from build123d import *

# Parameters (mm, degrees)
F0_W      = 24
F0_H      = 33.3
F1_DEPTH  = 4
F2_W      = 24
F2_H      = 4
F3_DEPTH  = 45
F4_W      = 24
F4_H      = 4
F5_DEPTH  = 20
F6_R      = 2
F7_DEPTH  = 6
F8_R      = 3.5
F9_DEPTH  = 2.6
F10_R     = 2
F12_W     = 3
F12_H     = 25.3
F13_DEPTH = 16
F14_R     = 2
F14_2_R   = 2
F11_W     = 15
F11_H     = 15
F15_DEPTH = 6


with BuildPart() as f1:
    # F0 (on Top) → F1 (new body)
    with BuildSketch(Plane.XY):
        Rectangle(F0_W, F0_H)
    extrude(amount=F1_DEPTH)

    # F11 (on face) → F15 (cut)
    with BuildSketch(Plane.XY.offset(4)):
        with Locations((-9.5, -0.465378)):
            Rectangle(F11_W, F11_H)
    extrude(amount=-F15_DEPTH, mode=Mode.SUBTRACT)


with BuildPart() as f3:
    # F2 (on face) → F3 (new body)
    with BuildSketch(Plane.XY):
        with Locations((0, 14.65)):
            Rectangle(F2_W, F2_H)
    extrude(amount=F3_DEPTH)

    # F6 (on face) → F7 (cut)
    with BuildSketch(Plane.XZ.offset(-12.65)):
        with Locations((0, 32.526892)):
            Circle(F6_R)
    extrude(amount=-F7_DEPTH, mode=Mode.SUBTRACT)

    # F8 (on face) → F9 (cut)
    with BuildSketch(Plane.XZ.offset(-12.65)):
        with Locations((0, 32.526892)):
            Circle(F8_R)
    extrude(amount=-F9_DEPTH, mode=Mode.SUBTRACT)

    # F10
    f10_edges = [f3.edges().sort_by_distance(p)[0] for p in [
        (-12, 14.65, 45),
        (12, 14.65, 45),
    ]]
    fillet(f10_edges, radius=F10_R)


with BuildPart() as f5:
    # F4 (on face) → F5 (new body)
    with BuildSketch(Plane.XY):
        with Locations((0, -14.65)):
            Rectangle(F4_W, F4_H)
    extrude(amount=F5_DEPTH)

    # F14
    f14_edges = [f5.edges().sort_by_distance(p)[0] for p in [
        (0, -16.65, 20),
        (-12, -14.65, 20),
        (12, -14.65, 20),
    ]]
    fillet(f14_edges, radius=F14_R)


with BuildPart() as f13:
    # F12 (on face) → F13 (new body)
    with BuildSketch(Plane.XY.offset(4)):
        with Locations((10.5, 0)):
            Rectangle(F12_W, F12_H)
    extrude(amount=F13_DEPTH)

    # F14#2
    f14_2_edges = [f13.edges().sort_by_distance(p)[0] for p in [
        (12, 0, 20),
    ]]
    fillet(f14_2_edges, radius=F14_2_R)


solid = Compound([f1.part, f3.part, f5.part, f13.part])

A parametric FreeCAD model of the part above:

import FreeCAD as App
import Part
import Sketcher
Q = App.Units.Quantity


def edges_at(feature, points):
    """Names of the edges that pass closest to the given points."""
    edges = feature.Shape.Edges
    near = lambda p: min(range(len(edges)), key=lambda i: edges[i].distToShape(Part.Vertex(*p))[0])
    return sorted({f"Edge{near(p) + 1}" for p in points})


def add_polygon(sketch, points):
    """Adds a closed chain of lines whose ends are joined by coincident constraints."""
    first, n = sketch.GeometryCount, len(points)
    for a, b in zip(points, points[1:] + points[:1]):
        sketch.addGeometry(Part.LineSegment(App.Vector(*a, 0), App.Vector(*b, 0)), False)
    for i in range(n):
        sketch.addConstraint(Sketcher.Constraint("Coincident", first + i, 2, first + (i + 1) % n, 1))

doc = App.newDocument("Part")
body = doc.addObject("PartDesign::Body", "Body")

sketch1 = body.newObject("Sketcher::SketchObject", "Sketch")
sketch1.AttachmentSupport = (doc.getObject("XY_Plane"), [""])
sketch1.MapMode = "FlatFace"
add_polygon(sketch1, [(-12, 16.65), (-12, -16.65), (12, -16.65), (12, 16.65)])
sketch1.addConstraint([
    Sketcher.Constraint("Vertical", 0),
    Sketcher.Constraint("Horizontal", 1),
    Sketcher.Constraint("Vertical", 2),
    Sketcher.Constraint("Horizontal", 3),
    Sketcher.Constraint("Symmetric", 0, 2, 2, 2, -1, 1),
    Sketcher.Constraint("DistanceX", 1, 1, 1, 2, Q("24 mm")),
    Sketcher.Constraint("DistanceY", 0, 2, 0, 1, Q("33.3 mm")),
])
pad1 = body.newObject("PartDesign::Pad", "Pad")
pad1.Profile = sketch1
pad1.Length = 4

sketch2 = body.newObject("Sketcher::SketchObject", "Sketch001")
sketch2.AttachmentSupport = (doc.getObject("XY_Plane"), [""])
sketch2.MapMode = "FlatFace"
sketch2.AttachmentOffset = App.Placement(App.Vector(0, 0, 4), App.Rotation())
add_polygon(sketch2, [(-17, 7.034622), (-17, -7.965378), (-2, -7.965378), (-2, 7.034622)])
sketch2.addConstraint([
    Sketcher.Constraint("Vertical", 0),
    Sketcher.Constraint("Horizontal", 1),
    Sketcher.Constraint("Vertical", 2),
    Sketcher.Constraint("Horizontal", 3),
    Sketcher.Constraint("Equal", 3, 0),
    Sketcher.Constraint("DistanceX", 1, 1, 1, 2, Q("15 mm")),
    Sketcher.Constraint("DistanceX", 0, 2, -1, 1, Q("17 mm")),
    Sketcher.Constraint("DistanceY", 0, 2, -1, 1, Q("7.965378 mm")),
])
pocket1 = body.newObject("PartDesign::Pocket", "Pocket")
pocket1.Profile = sketch2
pocket1.Length = 6
body2 = doc.addObject("PartDesign::Body", "Body001")

sketch3 = body2.newObject("Sketcher::SketchObject", "Sketch002")
sketch3.AttachmentSupport = (doc.getObject("XY_Plane001"), [""])
sketch3.MapMode = "FlatFace"
add_polygon(sketch3, [(-12, 16.65), (-12, 12.65), (12, 12.65), (12, 16.65)])
sketch3.addConstraint([
    Sketcher.Constraint("Vertical", 0),
    Sketcher.Constraint("Horizontal", 1),
    Sketcher.Constraint("Vertical", 2),
    Sketcher.Constraint("Horizontal", 3),
    Sketcher.Constraint("DistanceX", 1, 1, 1, 2, Q("24 mm")),
    Sketcher.Constraint("DistanceY", 0, 2, 0, 1, Q("4 mm")),
    Sketcher.Constraint("DistanceX", 0, 2, -1, 1, Q("12 mm")),
    Sketcher.Constraint("DistanceY", -1, 1, 0, 2, Q("12.65 mm")),
])
pad2 = body2.newObject("PartDesign::Pad", "Pad001")
pad2.Profile = sketch3
pad2.Length = 45

sketch4 = body2.newObject("Sketcher::SketchObject", "Sketch003")
sketch4.AttachmentSupport = (doc.getObject("XZ_Plane001"), [""])
sketch4.MapMode = "FlatFace"
sketch4.AttachmentOffset = App.Placement(App.Vector(0, 0, -12.65), App.Rotation())
sketch4.addGeometry(Part.Circle(App.Vector(0, 32.526892, 0), App.Vector(0, 0, 1), 2), False)
sketch4.addConstraint([
    Sketcher.Constraint("PointOnObject", 0, 3, -2),
    Sketcher.Constraint("Diameter", 0, Q("4 mm")),
    Sketcher.Constraint("DistanceY", -1, 1, 0, 3, Q("32.526892 mm")),
])
pocket2 = body2.newObject("PartDesign::Pocket", "Pocket001")
pocket2.Profile = sketch4
pocket2.Length = 6

sketch5 = body2.newObject("Sketcher::SketchObject", "Sketch004")
sketch5.AttachmentSupport = (doc.getObject("XZ_Plane001"), [""])
sketch5.MapMode = "FlatFace"
sketch5.AttachmentOffset = App.Placement(App.Vector(0, 0, -12.65), App.Rotation())
sketch5.addGeometry(Part.Circle(App.Vector(0, 32.526892, 0), App.Vector(0, 0, 1), 3.5), False)
sketch5.addConstraint([
    Sketcher.Constraint("PointOnObject", 0, 3, -2),
    Sketcher.Constraint("Diameter", 0, Q("7 mm")),
    Sketcher.Constraint("DistanceY", -1, 1, 0, 3, Q("32.526892 mm")),
])
pocket3 = body2.newObject("PartDesign::Pocket", "Pocket002")
pocket3.Profile = sketch5
pocket3.Length = 2.6
doc.recompute()

fillet = body2.newObject("PartDesign::Fillet", "Fillet")
fillet.Base = (pocket3, edges_at(pocket3, [(-12, 14.65, 45), (12, 14.65, 45)]))
fillet.Radius = 2
body3 = doc.addObject("PartDesign::Body", "Body002")

sketch6 = body3.newObject("Sketcher::SketchObject", "Sketch005")
sketch6.AttachmentSupport = (doc.getObject("XY_Plane002"), [""])
sketch6.MapMode = "FlatFace"
add_polygon(sketch6, [(-12, -12.65), (-12, -16.65), (12, -16.65), (12, -12.65)])
sketch6.addConstraint([
    Sketcher.Constraint("Vertical", 0),
    Sketcher.Constraint("Horizontal", 1),
    Sketcher.Constraint("Vertical", 2),
    Sketcher.Constraint("Horizontal", 3),
    Sketcher.Constraint("DistanceX", 1, 1, 1, 2, Q("24 mm")),
    Sketcher.Constraint("DistanceY", 0, 2, 0, 1, Q("4 mm")),
    Sketcher.Constraint("DistanceX", 0, 2, -1, 1, Q("12 mm")),
    Sketcher.Constraint("DistanceY", 0, 2, -1, 1, Q("16.65 mm")),
])
pad3 = body3.newObject("PartDesign::Pad", "Pad002")
pad3.Profile = sketch6
pad3.Length = 20
doc.recompute()

fillet2 = body3.newObject("PartDesign::Fillet", "Fillet001")
fillet2.Base = (pad3, edges_at(pad3, [(0, -16.65, 20), (-12, -14.65, 20), (12, -14.65, 20)]))
fillet2.Radius = 2
body4 = doc.addObject("PartDesign::Body", "Body003")

sketch7 = body4.newObject("Sketcher::SketchObject", "Sketch006")
sketch7.AttachmentSupport = (doc.getObject("XY_Plane003"), [""])
sketch7.MapMode = "FlatFace"
sketch7.AttachmentOffset = App.Placement(App.Vector(0, 0, 4), App.Rotation())
add_polygon(sketch7, [(9, 12.65), (9, -12.65), (12, -12.65), (12, 12.65)])
sketch7.addConstraint([
    Sketcher.Constraint("Vertical", 0),
    Sketcher.Constraint("Horizontal", 1),
    Sketcher.Constraint("Vertical", 2),
    Sketcher.Constraint("Horizontal", 3),
    Sketcher.Constraint("DistanceX", 1, 1, 1, 2, Q("3 mm")),
    Sketcher.Constraint("DistanceY", 0, 2, 0, 1, Q("25.3 mm")),
    Sketcher.Constraint("DistanceX", -1, 1, 0, 2, Q("9 mm")),
    Sketcher.Constraint("DistanceY", 0, 2, -1, 1, Q("12.65 mm")),
])
pad4 = body4.newObject("PartDesign::Pad", "Pad003")
pad4.Profile = sketch7
pad4.Length = 16
doc.recompute()

fillet3 = body4.newObject("PartDesign::Fillet", "Fillet002")
fillet3.Base = (pad4, edges_at(pad4, [(12, 0, 20)]))
fillet3.Radius = 2

doc.recompute()
